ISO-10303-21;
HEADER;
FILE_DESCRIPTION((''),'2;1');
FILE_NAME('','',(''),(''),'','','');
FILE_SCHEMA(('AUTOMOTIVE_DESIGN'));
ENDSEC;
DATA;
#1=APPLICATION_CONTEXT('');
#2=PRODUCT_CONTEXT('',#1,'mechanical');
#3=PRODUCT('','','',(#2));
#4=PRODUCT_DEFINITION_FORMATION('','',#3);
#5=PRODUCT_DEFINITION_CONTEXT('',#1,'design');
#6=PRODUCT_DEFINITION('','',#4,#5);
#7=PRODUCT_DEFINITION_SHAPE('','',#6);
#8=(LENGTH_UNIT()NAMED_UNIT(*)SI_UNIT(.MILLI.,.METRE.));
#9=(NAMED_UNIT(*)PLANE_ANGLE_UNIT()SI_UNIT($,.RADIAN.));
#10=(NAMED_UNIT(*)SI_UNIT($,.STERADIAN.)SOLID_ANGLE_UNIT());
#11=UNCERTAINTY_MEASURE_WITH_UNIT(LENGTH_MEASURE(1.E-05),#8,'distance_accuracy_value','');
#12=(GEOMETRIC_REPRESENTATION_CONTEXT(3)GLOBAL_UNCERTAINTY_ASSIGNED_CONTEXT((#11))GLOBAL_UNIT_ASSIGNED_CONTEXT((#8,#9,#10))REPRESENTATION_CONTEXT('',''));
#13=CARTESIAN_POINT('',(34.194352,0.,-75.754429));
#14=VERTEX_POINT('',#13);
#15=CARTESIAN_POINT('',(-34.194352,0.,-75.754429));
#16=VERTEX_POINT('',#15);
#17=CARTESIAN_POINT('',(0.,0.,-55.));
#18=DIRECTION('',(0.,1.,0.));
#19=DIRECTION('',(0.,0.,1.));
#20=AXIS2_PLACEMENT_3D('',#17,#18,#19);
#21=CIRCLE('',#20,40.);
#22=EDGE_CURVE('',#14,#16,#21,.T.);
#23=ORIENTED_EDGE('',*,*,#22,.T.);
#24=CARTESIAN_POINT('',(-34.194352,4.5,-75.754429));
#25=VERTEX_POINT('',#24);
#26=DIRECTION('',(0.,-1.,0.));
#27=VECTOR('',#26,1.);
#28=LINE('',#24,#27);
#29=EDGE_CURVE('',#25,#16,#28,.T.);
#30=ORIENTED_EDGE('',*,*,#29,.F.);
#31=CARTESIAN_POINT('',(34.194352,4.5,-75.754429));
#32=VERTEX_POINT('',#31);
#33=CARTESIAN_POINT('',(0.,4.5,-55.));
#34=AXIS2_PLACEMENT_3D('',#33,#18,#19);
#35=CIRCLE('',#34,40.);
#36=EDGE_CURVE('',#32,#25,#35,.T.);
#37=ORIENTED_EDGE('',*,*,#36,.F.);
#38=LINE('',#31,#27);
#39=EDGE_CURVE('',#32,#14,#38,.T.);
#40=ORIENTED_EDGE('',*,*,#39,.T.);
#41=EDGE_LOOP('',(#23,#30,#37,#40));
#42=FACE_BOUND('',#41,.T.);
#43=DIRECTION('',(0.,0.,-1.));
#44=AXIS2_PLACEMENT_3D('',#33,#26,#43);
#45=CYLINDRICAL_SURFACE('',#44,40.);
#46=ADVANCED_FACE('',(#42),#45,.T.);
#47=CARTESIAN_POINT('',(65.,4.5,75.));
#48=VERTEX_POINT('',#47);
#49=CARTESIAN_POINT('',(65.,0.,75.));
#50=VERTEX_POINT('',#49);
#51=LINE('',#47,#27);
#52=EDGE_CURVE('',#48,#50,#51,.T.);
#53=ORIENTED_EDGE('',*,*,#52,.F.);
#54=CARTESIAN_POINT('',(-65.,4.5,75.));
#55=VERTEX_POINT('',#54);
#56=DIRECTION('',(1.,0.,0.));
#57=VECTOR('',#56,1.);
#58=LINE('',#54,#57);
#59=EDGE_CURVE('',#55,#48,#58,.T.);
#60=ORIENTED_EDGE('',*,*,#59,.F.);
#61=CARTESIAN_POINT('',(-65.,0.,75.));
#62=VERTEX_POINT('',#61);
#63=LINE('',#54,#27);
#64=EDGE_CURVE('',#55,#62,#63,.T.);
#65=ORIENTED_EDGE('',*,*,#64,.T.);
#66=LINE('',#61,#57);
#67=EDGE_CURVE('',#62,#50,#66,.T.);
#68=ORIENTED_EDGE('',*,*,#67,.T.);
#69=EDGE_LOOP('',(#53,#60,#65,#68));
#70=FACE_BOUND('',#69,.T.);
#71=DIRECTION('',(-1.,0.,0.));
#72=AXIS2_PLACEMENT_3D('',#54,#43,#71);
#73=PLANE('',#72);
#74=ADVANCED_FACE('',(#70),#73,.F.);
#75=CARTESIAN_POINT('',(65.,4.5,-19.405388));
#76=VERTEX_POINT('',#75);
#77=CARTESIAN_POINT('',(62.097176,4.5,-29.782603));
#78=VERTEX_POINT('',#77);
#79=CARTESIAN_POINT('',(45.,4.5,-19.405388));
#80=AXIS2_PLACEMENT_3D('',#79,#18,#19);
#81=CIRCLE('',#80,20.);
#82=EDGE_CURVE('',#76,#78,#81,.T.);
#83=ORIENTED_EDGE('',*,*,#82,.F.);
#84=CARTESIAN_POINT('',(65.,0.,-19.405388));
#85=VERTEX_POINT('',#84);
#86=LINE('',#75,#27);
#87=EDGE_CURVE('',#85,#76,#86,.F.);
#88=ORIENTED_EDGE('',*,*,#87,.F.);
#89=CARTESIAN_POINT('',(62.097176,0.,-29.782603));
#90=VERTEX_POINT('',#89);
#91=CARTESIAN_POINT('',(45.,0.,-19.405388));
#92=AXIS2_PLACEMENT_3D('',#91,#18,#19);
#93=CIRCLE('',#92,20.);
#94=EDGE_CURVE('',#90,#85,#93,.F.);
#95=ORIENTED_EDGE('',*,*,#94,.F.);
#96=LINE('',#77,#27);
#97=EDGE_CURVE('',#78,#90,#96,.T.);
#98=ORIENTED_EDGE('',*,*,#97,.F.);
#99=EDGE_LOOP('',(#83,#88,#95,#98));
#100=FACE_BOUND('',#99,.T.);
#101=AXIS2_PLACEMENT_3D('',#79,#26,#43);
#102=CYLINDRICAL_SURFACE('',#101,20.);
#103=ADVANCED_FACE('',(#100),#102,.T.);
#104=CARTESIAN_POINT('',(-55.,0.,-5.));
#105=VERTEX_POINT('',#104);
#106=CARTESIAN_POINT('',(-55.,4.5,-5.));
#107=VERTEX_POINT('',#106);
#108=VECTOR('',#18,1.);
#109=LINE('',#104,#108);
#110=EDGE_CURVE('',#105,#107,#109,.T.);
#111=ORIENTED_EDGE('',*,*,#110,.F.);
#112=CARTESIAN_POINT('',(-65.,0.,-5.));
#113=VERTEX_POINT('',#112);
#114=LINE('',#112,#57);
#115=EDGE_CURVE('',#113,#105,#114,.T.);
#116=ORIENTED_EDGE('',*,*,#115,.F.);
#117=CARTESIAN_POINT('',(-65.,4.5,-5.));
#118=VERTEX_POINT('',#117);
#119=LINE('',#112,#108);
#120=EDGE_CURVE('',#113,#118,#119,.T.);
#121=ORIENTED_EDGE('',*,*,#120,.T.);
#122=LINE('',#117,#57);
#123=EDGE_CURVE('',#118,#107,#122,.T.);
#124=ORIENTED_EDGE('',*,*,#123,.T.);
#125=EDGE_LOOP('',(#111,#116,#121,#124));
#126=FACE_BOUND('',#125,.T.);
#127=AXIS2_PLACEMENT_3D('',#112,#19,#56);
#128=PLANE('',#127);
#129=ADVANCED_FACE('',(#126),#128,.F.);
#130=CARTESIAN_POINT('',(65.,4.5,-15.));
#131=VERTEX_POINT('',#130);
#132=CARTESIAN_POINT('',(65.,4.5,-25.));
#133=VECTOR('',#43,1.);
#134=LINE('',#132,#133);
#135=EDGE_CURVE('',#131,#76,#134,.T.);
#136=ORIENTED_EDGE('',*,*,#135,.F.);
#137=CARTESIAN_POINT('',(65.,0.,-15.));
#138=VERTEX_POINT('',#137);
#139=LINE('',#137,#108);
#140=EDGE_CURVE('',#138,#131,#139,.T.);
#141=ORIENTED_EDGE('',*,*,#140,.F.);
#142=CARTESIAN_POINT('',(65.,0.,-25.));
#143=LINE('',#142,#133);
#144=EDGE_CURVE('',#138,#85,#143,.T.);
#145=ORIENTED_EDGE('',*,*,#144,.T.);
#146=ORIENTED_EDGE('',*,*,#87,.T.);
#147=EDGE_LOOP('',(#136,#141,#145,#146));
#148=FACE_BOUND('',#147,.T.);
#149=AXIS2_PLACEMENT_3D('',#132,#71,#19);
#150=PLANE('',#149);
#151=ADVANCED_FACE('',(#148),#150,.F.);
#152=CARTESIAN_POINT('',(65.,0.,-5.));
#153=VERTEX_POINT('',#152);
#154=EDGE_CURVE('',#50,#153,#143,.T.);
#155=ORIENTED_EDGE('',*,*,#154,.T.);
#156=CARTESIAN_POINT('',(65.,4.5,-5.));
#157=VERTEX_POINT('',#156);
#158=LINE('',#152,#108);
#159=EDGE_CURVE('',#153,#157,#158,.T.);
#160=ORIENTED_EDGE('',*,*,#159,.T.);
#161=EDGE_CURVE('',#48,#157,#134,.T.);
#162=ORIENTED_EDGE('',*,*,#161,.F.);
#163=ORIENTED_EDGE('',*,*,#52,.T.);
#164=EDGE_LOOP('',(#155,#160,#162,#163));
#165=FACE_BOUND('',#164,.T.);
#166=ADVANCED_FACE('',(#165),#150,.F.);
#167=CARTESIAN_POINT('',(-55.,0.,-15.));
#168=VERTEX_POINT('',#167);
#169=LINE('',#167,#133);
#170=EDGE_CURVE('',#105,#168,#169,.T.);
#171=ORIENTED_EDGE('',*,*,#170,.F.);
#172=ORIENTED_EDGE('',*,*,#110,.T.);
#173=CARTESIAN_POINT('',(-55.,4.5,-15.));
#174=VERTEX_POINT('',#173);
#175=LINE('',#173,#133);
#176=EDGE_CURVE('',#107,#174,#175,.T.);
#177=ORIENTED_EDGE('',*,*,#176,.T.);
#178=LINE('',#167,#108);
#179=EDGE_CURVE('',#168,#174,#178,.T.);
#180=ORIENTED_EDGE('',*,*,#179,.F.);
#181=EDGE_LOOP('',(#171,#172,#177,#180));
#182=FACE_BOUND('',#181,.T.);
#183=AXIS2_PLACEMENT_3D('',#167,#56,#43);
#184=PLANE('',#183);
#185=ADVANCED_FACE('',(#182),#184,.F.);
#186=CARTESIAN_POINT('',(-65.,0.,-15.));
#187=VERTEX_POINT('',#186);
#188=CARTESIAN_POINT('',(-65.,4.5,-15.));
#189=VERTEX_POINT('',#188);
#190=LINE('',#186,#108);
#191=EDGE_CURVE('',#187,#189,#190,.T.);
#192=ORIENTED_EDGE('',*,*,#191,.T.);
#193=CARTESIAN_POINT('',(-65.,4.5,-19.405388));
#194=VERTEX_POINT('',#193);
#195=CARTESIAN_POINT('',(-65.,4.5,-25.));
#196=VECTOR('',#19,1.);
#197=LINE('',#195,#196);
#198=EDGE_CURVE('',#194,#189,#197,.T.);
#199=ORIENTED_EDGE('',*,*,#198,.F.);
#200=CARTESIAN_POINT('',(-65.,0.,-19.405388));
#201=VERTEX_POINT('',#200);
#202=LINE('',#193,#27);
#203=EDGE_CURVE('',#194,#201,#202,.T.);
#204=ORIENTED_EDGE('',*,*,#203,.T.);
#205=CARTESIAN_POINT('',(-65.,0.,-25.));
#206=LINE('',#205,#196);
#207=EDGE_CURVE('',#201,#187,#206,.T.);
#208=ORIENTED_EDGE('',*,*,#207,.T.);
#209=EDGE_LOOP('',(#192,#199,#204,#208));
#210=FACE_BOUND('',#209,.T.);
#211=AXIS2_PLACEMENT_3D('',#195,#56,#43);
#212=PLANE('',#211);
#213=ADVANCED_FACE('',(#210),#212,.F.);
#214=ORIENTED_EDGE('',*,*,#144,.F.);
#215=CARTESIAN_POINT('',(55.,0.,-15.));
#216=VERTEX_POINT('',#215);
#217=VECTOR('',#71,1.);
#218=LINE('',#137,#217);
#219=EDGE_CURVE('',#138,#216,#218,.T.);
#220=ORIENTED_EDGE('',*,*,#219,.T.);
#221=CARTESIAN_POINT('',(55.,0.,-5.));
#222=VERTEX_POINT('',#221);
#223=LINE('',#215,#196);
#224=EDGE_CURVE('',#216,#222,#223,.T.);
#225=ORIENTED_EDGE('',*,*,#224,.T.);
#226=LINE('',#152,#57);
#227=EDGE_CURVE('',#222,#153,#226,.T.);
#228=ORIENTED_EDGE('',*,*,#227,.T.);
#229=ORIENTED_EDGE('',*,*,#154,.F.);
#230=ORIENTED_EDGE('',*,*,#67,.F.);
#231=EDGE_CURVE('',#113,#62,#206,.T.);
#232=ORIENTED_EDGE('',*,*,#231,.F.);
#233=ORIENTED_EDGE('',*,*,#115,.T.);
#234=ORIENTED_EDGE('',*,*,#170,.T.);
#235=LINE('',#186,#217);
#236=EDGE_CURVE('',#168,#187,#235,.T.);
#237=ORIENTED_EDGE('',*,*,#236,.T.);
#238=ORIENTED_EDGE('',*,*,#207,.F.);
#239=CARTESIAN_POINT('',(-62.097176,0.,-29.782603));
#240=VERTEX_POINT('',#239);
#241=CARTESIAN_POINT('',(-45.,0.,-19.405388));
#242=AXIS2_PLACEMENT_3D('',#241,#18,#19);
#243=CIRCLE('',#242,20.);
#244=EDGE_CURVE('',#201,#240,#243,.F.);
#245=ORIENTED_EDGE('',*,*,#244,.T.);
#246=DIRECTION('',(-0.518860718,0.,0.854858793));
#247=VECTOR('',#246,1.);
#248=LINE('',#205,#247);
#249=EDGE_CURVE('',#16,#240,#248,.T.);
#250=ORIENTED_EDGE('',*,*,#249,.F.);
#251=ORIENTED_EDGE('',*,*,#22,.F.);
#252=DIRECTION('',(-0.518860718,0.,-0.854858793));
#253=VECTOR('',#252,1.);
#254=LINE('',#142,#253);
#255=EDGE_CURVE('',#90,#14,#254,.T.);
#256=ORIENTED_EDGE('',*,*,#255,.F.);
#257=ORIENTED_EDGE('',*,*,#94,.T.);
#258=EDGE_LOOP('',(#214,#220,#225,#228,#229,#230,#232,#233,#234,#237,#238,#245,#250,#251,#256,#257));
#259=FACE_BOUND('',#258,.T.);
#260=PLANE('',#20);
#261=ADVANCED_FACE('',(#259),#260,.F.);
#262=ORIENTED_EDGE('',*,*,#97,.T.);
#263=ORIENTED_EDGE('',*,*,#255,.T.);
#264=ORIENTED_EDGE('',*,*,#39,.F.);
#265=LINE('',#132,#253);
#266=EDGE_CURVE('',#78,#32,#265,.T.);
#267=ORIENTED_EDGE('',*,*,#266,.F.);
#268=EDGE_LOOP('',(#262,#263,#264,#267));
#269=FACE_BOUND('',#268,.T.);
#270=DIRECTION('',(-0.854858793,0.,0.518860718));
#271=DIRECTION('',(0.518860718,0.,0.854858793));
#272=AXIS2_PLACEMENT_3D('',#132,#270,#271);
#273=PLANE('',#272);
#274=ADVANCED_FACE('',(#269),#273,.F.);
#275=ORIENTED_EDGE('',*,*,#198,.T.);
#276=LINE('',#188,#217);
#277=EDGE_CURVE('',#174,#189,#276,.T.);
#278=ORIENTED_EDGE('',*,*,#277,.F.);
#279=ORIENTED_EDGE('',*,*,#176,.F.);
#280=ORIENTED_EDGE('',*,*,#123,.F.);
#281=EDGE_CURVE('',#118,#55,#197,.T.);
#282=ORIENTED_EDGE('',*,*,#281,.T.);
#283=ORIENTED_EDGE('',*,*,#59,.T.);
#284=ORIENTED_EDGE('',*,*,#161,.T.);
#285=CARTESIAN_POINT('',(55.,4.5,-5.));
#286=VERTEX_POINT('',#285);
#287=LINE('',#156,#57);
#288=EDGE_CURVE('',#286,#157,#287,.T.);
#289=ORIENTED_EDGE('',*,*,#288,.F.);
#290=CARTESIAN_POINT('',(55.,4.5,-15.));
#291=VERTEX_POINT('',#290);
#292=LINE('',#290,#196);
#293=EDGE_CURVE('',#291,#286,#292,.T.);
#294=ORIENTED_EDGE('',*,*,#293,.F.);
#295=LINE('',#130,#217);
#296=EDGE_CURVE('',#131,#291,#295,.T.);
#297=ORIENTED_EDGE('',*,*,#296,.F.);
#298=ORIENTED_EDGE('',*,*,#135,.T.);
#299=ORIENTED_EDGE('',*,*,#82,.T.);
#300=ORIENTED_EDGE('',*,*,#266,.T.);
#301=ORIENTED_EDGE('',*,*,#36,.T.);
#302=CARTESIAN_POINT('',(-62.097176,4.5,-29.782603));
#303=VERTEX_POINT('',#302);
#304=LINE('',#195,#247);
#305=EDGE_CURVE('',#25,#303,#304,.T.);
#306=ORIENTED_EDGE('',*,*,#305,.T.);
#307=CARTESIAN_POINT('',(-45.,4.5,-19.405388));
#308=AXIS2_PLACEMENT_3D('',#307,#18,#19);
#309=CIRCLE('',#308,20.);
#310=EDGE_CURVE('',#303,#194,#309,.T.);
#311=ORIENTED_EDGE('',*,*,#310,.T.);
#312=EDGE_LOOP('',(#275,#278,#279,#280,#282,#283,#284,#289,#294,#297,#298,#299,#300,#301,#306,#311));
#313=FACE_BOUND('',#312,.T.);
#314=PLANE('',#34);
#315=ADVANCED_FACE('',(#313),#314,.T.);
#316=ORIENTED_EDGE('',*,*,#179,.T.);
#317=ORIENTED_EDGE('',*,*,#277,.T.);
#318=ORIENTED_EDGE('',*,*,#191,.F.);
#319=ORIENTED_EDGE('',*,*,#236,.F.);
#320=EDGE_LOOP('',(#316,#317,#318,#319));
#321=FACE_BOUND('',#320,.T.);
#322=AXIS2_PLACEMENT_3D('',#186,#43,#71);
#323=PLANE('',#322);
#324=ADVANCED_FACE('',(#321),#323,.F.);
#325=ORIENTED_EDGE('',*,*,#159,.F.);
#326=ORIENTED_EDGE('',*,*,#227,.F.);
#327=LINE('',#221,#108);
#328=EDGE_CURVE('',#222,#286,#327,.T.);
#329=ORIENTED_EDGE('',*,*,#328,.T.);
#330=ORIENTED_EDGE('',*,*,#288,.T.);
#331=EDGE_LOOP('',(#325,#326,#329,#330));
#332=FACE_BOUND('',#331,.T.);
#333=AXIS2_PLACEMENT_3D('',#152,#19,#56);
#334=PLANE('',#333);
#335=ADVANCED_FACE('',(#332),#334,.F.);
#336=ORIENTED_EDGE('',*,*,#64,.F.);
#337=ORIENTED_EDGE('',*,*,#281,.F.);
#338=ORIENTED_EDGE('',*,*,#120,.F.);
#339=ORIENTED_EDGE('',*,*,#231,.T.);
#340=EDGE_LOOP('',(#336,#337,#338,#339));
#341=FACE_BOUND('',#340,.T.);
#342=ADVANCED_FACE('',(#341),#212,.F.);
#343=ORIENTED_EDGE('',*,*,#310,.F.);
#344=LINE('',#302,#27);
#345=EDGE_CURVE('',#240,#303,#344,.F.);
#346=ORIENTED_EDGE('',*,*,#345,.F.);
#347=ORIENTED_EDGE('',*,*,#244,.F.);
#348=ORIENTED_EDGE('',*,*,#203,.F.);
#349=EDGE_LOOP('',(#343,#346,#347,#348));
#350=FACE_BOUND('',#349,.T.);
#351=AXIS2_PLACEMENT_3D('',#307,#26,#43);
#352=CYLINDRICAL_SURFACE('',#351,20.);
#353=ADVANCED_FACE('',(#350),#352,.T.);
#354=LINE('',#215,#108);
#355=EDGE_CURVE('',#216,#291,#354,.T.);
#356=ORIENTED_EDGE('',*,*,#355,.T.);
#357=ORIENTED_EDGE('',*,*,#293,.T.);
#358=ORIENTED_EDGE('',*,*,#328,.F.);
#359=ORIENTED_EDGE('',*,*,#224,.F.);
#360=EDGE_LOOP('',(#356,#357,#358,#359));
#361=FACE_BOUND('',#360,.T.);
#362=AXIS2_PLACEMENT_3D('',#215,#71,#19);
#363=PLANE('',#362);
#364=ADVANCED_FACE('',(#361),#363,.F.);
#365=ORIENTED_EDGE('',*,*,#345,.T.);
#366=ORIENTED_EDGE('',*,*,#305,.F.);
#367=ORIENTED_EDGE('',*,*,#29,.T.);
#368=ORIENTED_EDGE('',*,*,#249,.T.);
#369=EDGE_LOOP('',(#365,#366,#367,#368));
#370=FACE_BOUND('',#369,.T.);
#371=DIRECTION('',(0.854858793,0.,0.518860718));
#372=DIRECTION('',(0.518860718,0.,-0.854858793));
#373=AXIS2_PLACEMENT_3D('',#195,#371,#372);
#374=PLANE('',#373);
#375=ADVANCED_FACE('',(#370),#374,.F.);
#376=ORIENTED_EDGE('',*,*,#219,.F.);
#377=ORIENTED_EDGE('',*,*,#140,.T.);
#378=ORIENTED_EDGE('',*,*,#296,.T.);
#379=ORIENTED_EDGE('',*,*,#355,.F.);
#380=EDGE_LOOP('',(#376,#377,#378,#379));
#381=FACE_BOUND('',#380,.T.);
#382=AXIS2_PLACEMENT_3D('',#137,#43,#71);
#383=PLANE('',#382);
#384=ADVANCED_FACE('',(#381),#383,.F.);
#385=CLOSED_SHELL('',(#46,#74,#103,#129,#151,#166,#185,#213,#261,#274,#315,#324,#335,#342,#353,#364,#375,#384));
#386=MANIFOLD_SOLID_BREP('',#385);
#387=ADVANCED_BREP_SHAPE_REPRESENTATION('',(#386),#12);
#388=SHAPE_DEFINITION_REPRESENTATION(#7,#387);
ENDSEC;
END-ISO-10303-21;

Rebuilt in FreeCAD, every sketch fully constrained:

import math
import FreeCAD as App
import Part
import Sketcher


def edges_at(feature, points):
    """Names of the edges that pass closest to the given points."""
    edges = feature.Shape.Edges
    near = lambda p: min(range(len(edges)), key=lambda i: edges[i].distToShape(Part.Vertex(*p))[0])
    return sorted({f"Edge{near(p) + 1}" for p in points})

doc = App.newDocument("Part")
body = doc.addObject("PartDesign::Body", "Body")

sketch1 = body.newObject("Sketcher::SketchObject", "Sketch")
sketch1.AttachmentSupport = (doc.getObject("XZ_Plane"), [""])
sketch1.MapMode = "FlatFace"
sketch1.addGeometry([
    Part.LineSegment(App.Vector(-34, -76, 0), App.Vector(-65, -25, 0)),
    Part.LineSegment(App.Vector(-65, -25, 0), App.Vector(-65, 75, 0)),
    Part.LineSegment(App.Vector(-65, 75, 0), App.Vector(65, 75, 0)),
    Part.LineSegment(App.Vector(65, 75, 0), App.Vector(65, -25, 0)),
    Part.LineSegment(App.Vector(65, -25, 0), App.Vector(34, -76, 0)),
    Part.ArcOfCircle(Part.Circle(App.Vector(0, -55, 0), App.Vector(0, 0, 1), 40), math.radians(-149), math.radians(-31)),
], False)
sketch1.addConstraint([
    Sketcher.Constraint("Coincident", 0, 2, 1, 1),
    Sketcher.Constraint("Coincident", 1, 2, 2, 1),
    Sketcher.Constraint("Coincident", 2, 2, 3, 1),
    Sketcher.Constraint("Coincident", 3, 2, 4, 1),
    Sketcher.Constraint("Tangent", 4, 2, 5, 2),
    Sketcher.Constraint("Tangent", 5, 1, 0, 1),
    Sketcher.Constraint("Vertical", 1),
    Sketcher.Constraint("Horizontal", 2),
    Sketcher.Constraint("Vertical", 3),
    Sketcher.Constraint("Symmetric", 0, 2, 3, 2, -2),
    Sketcher.Constraint("PointOnObject", 5, 3, -2),
    Sketcher.Constraint("Radius", 5, 40.0),
    Sketcher.Constraint("DistanceX", 2, 1, 2, 2, 130.0),
    Sketcher.Constraint("DistanceY", 1, 1, 1, 2, 100.0),
    Sketcher.Constraint("DistanceY", 5, 3, -1, 1, 55.0),
    Sketcher.Constraint("DistanceY", 0, 2, -1, 1, 25.0),
])
pad1 = body.newObject("PartDesign::Pad", "Pad")
pad1.Profile = sketch1
pad1.Length = 4.5
pad1.Reversed = True
doc.recompute()

fillet = body.newObject("PartDesign::Fillet", "Fillet")
fillet.Base = (pad1, edges_at(pad1, [(-65, 2.25, -25), (65, 2.25, -25)]))
fillet.Radius = 20

sketch2 = body.newObject("Sketcher::SketchObject", "Sketch001")
sketch2.AttachmentSupport = (doc.getObject("XZ_Plane"), [""])
sketch2.MapMode = "FlatFace"
sketch2.AttachmentOffset = App.Placement(App.Vector(0, 0, -4.5), App.Rotation())
sketch2.addGeometry([
    Part.LineSegment(App.Vector(-65, -15, 0), App.Vector(-65, -5, 0)),
    Part.LineSegment(App.Vector(-65, -5, 0), App.Vector(-55, -5, 0)),
    Part.LineSegment(App.Vector(-55, -5, 0), App.Vector(-55, -15, 0)),
    Part.LineSegment(App.Vector(-55, -15, 0), App.Vector(-65, -15, 0)),
    Part.LineSegment(App.Vector(55, -15, 0), App.Vector(55, -5, 0)),
    Part.LineSegment(App.Vector(55, -5, 0), App.Vector(65, -5, 0)),
    Part.LineSegment(App.Vector(65, -5, 0), App.Vector(65, -15, 0)),
    Part.LineSegment(App.Vector(65, -15, 0), App.Vector(55, -15, 0)),
], False)
sketch2.addConstraint([
    Sketcher.Constraint("Coincident", 0, 2, 1, 1),
    Sketcher.Constraint("Coincident", 1, 2, 2, 1),
    Sketcher.Constraint("Coincident", 2, 2, 3, 1),
    Sketcher.Constraint("Coincident", 3, 2, 0, 1),
    Sketcher.Constraint("Coincident", 4, 2, 5, 1),
    Sketcher.Constraint("Coincident", 5, 2, 6, 1),
    Sketcher.Constraint("Coincident", 6, 2, 7, 1),
    Sketcher.Constraint("Coincident", 7, 2, 4, 1),
    Sketcher.Constraint("Vertical", 0),
    Sketcher.Constraint("Horizontal", 1),
    Sketcher.Constraint("Vertical", 2),
    Sketcher.Constraint("Horizontal", 3),
    Sketcher.Constraint("Vertical", 4),
    Sketcher.Constraint("Horizontal", 5),
    Sketcher.Constraint("Vertical", 6),
    Sketcher.Constraint("Horizontal", 7),
    Sketcher.Constraint("Symmetric", 1, 2, 4, 2, -2),
    Sketcher.Constraint("Symmetric", 3, 2, 6, 2, -2),
    Sketcher.Constraint("Equal", 7, 0),
    Sketcher.Constraint("DistanceX", 1, 1, 1, 2, 10.0),
    Sketcher.Constraint("DistanceX", 0, 2, -1, 1, 65.0),
    Sketcher.Constraint("DistanceY", 0, 2, -1, 1, 5.0),
])
pocket1 = body.newObject("PartDesign::Pocket", "Pocket")
pocket1.Profile = sketch2
pocket1.Type = "ThroughAll"
pocket1.Reversed = True

doc.recompute()
